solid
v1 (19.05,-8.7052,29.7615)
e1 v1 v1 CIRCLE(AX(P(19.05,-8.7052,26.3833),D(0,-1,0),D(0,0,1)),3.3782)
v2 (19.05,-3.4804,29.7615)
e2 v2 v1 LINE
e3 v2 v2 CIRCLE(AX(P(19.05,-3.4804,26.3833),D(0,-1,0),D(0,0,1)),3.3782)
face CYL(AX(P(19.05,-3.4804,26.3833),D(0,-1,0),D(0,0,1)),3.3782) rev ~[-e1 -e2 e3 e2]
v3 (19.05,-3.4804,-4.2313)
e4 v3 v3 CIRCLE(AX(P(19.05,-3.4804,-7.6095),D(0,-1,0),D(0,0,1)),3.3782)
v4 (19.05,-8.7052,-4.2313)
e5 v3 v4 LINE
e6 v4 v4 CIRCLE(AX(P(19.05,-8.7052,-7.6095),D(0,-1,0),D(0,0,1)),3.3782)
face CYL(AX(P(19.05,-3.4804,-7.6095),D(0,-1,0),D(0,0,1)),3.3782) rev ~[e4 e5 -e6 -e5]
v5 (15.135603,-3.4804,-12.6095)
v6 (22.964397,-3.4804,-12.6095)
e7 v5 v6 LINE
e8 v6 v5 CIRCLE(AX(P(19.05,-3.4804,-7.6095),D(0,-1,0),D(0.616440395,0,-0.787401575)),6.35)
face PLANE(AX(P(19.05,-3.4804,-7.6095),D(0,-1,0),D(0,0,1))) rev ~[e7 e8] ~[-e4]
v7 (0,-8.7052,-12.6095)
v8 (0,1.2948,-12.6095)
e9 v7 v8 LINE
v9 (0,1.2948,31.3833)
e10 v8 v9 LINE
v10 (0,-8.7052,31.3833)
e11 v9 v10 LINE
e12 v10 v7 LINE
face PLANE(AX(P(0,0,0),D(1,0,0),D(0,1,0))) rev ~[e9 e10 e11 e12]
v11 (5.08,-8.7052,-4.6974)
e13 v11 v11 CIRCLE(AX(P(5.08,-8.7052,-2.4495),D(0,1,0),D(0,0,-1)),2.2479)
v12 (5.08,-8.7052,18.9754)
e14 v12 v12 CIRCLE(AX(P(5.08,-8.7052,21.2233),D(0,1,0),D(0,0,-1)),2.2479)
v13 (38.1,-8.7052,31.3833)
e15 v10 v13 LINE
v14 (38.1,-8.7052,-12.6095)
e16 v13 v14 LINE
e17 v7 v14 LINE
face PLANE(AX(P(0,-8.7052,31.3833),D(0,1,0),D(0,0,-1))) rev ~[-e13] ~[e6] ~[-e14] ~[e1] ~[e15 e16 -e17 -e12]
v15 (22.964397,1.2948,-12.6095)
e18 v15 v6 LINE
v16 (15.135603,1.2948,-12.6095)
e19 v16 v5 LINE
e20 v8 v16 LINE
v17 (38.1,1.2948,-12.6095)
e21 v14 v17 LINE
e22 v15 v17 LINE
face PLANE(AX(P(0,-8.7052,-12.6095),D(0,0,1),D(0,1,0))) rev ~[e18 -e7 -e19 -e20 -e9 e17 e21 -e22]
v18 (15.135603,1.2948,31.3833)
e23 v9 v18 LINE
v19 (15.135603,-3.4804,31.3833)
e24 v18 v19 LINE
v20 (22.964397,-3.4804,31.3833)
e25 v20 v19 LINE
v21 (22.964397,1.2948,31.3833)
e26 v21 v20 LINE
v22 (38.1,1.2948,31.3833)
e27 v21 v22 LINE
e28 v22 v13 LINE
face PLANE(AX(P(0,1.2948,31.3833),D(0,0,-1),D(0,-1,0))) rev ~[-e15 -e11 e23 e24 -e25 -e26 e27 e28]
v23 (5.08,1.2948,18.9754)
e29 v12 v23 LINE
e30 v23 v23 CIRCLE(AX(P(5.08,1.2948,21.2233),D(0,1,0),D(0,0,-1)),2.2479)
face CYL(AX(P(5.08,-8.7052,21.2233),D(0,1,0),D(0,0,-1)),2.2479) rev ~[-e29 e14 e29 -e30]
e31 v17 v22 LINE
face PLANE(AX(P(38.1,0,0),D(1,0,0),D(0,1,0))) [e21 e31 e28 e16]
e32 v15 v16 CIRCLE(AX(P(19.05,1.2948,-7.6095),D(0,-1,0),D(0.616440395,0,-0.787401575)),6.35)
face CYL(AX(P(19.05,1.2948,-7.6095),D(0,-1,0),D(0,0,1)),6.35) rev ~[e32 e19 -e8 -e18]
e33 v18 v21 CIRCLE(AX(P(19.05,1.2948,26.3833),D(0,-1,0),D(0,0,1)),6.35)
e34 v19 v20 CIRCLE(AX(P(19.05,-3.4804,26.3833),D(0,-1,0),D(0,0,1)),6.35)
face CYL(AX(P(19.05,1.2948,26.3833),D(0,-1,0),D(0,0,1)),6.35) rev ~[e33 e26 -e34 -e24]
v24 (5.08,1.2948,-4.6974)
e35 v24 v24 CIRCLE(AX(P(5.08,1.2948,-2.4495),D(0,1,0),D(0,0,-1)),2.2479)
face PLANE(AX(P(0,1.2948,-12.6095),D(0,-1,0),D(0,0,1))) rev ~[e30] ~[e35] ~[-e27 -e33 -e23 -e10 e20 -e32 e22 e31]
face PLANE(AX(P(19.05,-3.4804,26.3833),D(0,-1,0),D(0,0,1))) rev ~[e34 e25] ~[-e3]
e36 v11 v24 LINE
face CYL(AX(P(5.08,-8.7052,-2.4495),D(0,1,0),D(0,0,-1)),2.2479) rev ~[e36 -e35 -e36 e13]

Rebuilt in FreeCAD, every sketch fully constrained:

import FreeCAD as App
import Part
import Sketcher
Q = App.Units.Quantity


def add_polygon(sketch, points):
    """Adds a closed chain of lines whose ends are joined by coincident constraints."""
    first, n = sketch.GeometryCount, len(points)
    for a, b in zip(points, points[1:] + points[:1]):
        sketch.addGeometry(Part.LineSegment(App.Vector(*a, 0), App.Vector(*b, 0)), False)
    for i in range(n):
        sketch.addConstraint(Sketcher.Constraint("Coincident", first + i, 2, first + (i + 1) % n, 1))

doc = App.newDocument("Part")
params = doc.addObject("Spreadsheet::Sheet", "Params")
for row, (alias, value) in enumerate([
    ("sketch1_height", "1.732 in"),
    ("pad1_length", "1.5 in"),
    ("sketch2_diameter", "0.266 in"),
    ("hole_diameter", "0.266 in"),
    ("hole_cbore_diameter", "0.5 in"),
    ("hole_cbore_depth", "0.188 in"),
    ("sketch3_diameter", "0.177 in"),
    ("hole2_diameter", "0.177 in"),
], start=1):
    params.set(f"A{row}", alias)
    params.set(f"B{row}", "=" + value)
    params.setAlias(f"B{row}", alias)

body = doc.addObject("PartDesign::Body", "Body")

sketch1 = doc.addObject("Sketcher::SketchObject", "Sketch")
body.addObject(sketch1)
sketch1.AttachmentSupport = (doc.YZ_Plane, [""])
sketch1.MapMode = "FlatFace"
add_polygon(sketch1, [(1.2948, -12.6095), (1.2948, 31.3833), (-8.7052, 31.3833), (-8.7052, -12.6095)])
sketch1.addConstraint(Sketcher.Constraint("Vertical", 0))
sketch1.addConstraint(Sketcher.Constraint("Horizontal", 1))
sketch1.addConstraint(Sketcher.Constraint("Vertical", 2))
sketch1.addConstraint(Sketcher.Constraint("Horizontal", 3))
sketch1.addConstraint(Sketcher.Constraint("DistanceY", 0, 1, 0, 2, Q("1.732 in")))
sketch1.addConstraint(Sketcher.Constraint("DistanceX", 1, 2, 1, 1, Q("0.3937 in")))
sketch1.addConstraint(Sketcher.Constraint("DistanceX", -1, 1, 0, 2, Q("1.2948 mm")))
sketch1.addConstraint(Sketcher.Constraint("DistanceY", -1, 1, 0, 2, Q("31.3833 mm")))
sketch1.setExpression("Constraints[8]", "Params.sketch1_height")
pad1 = doc.addObject("PartDesign::Pad", "Pad")
body.addObject(pad1)
pad1.Profile = sketch1
pad1.setExpression("Length", "Params.pad1_length")

sketch2 = doc.addObject("Sketcher::SketchObject", "Sketch001")
body.addObject(sketch2)
sketch2.AttachmentSupport = (doc.XZ_Plane, [""])
sketch2.MapMode = "FlatFace"
sketch2.AttachmentOffset = App.Placement(App.Vector(0, 0, -1.2948), App.Rotation())
sketch2.addGeometry(Part.Circle(App.Vector(19.05, 26.3833, 0), App.Vector(0, 0, 1), 3.3782), False)
sketch2.addGeometry(Part.Circle(App.Vector(19.05, -7.6095, 0), App.Vector(0, 0, 1), 3.3782), False)
sketch2.addConstraint(Sketcher.Constraint("Equal", 0, 1))
sketch2.addConstraint(Sketcher.Constraint("Vertical", 0, 3, 1, 3))
sketch2.addConstraint(Sketcher.Constraint("Diameter", 0, Q("0.266 in")))
sketch2.addConstraint(Sketcher.Constraint("DistanceX", -1, 1, 0, 3, Q("0.75 in")))
sketch2.addConstraint(Sketcher.Constraint("DistanceY", 1, 3, 0, 3, Q("1.3383 in")))
sketch2.addConstraint(Sketcher.Constraint("DistanceY", -1, 1, 0, 3, Q("26.3833 mm")))
sketch2.setExpression("Constraints[2]", "Params.sketch2_diameter")
doc.recompute()
hole = doc.addObject("PartDesign::Hole", "Hole")
body.addObject(hole)
hole.Profile = sketch2
hole.ThreadType = "None"
hole.setExpression("Diameter", "Params.hole_diameter")
hole.DepthType = "ThroughAll"
hole.HoleCutType = "Counterbore"
hole.setExpression("HoleCutDiameter", "Params.hole_cbore_diameter")
hole.setExpression("HoleCutDepth", "Params.hole_cbore_depth")
hole.Reversed = True

sketch3 = doc.addObject("Sketcher::SketchObject", "Sketch002")
body.addObject(sketch3)
sketch3.AttachmentSupport = (doc.XZ_Plane, [""])
sketch3.MapMode = "FlatFace"
sketch3.AttachmentOffset = App.Placement(App.Vector(0, 0, 8.7052), App.Rotation())
sketch3.addGeometry(Part.Circle(App.Vector(5.08, 21.2233, 0), App.Vector(0, 0, 1), 2.2479), False)
sketch3.addGeometry(Part.Circle(App.Vector(5.08, -2.4495, 0), App.Vector(0, 0, 1), 2.2479), False)
sketch3.addConstraint(Sketcher.Constraint("Equal", 0, 1))
sketch3.addConstraint(Sketcher.Constraint("Vertical", 0, 3, 1, 3))
sketch3.addConstraint(Sketcher.Constraint("Diameter", 0, Q("0.177 in")))
sketch3.addConstraint(Sketcher.Constraint("DistanceX", -1, 1, 0, 3, Q("0.2 in")))
sketch3.addConstraint(Sketcher.Constraint("DistanceY", 1, 3, 0, 3, Q("0.932 in")))
sketch3.addConstraint(Sketcher.Constraint("DistanceY", -1, 1, 0, 3, Q("21.2233 mm")))
sketch3.setExpression("Constraints[2]", "Params.sketch3_diameter")
doc.recompute()
hole2 = doc.addObject("PartDesign::Hole", "Hole001")
body.addObject(hole2)
hole2.Profile = sketch3
hole2.ThreadType = "None"
hole2.setExpression("Diameter", "Params.hole2_diameter")
hole2.DepthType = "ThroughAll"

doc.recompute()
